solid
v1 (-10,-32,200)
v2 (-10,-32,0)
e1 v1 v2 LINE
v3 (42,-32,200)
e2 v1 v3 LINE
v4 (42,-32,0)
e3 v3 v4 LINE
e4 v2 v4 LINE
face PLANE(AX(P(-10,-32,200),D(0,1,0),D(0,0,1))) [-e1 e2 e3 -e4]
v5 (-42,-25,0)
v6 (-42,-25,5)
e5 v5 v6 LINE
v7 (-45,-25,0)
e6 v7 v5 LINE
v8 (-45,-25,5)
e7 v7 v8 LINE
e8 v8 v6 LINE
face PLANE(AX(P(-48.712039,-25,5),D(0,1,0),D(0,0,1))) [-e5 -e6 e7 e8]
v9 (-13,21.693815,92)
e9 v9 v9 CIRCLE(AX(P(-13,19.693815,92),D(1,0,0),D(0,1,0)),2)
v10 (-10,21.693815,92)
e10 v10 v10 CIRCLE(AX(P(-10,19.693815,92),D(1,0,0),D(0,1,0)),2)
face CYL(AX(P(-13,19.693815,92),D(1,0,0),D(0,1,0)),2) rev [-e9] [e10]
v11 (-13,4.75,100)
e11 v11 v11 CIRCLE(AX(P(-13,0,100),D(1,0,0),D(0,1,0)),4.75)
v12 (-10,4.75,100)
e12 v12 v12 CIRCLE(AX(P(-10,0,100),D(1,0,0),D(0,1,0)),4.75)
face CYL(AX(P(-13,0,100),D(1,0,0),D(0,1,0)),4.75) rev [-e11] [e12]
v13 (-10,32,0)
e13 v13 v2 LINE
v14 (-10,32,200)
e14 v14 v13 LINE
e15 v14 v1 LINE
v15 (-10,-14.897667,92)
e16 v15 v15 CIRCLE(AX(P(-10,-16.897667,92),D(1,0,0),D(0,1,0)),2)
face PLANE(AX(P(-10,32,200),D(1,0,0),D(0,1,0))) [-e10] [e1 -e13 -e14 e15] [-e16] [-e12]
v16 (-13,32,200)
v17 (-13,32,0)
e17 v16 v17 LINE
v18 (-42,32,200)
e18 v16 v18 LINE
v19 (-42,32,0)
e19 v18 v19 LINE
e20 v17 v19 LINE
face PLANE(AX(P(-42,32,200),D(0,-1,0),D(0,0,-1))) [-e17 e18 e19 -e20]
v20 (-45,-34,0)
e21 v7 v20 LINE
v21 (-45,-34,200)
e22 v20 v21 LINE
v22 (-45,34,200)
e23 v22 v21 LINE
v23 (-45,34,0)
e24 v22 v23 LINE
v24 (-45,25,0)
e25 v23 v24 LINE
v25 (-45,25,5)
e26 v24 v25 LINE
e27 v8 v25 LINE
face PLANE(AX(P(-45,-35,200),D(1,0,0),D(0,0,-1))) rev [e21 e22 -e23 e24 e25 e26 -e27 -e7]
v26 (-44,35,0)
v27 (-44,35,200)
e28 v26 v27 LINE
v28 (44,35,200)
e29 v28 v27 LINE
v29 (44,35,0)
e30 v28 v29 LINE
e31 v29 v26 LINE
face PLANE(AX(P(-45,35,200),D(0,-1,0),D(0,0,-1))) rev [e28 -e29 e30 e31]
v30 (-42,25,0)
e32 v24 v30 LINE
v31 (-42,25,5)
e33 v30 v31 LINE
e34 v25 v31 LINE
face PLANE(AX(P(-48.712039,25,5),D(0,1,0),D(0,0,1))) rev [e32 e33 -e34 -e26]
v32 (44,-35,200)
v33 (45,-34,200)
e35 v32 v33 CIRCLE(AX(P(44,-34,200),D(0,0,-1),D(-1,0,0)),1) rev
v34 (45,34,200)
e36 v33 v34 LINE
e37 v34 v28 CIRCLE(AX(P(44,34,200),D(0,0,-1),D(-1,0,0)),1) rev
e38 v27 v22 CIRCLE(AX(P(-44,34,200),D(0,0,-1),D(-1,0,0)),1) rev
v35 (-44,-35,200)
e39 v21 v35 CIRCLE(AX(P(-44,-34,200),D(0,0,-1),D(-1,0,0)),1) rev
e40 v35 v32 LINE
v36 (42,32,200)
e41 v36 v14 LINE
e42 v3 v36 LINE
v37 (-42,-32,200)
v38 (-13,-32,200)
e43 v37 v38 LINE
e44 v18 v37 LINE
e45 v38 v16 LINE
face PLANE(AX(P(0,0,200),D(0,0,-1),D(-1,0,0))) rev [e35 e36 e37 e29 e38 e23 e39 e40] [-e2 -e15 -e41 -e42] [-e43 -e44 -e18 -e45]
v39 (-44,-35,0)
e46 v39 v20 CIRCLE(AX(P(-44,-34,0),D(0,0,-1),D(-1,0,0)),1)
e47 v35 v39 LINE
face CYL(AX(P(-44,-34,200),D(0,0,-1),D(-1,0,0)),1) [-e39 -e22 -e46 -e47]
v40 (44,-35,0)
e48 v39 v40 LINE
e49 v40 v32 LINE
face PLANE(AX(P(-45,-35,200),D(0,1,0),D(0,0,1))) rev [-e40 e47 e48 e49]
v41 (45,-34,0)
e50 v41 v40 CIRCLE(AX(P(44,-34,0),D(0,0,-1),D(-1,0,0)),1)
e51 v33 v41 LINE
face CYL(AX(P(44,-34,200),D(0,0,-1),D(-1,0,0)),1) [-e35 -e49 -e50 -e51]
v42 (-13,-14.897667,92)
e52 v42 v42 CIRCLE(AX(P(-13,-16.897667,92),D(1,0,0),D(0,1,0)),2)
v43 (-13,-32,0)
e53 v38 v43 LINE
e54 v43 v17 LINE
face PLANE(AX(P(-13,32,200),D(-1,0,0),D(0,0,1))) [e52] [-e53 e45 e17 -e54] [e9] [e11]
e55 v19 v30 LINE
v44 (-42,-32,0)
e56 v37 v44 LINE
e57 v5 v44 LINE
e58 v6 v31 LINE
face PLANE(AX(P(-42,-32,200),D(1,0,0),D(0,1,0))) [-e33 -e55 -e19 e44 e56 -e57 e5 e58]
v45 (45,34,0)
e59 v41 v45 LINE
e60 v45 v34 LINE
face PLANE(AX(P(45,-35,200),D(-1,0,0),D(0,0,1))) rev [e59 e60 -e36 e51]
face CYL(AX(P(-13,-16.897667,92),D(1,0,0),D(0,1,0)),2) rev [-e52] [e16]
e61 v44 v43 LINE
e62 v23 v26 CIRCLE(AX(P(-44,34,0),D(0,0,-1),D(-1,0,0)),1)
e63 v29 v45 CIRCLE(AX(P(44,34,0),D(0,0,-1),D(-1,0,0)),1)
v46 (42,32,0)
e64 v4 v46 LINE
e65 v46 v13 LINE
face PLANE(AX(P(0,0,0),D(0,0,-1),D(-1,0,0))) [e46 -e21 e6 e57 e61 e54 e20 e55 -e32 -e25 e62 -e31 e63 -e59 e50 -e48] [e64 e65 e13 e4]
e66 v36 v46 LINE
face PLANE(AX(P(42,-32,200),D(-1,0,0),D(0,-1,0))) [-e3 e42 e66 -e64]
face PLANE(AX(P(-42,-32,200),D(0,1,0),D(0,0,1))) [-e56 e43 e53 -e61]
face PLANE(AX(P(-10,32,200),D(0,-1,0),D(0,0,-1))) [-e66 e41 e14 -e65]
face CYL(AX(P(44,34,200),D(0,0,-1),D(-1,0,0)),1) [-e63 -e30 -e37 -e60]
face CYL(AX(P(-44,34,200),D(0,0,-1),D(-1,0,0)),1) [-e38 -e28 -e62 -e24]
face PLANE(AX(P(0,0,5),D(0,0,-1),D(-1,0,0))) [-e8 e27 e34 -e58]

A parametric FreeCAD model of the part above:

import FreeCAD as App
import Part
import Sketcher


def edges_at(feature, points):
    """Names of the edges that pass closest to the given points."""
    edges = feature.Shape.Edges
    near = lambda p: min(range(len(edges)), key=lambda i: edges[i].distToShape(Part.Vertex(*p))[0])
    return sorted({f"Edge{near(p) + 1}" for p in points})


def add_polygon(sketch, points):
    """Adds a closed chain of lines whose ends are joined by coincident constraints."""
    first, n = sketch.GeometryCount, len(points)
    for a, b in zip(points, points[1:] + points[:1]):
        sketch.addGeometry(Part.LineSegment(App.Vector(*a, 0), App.Vector(*b, 0)), False)
    for i in range(n):
        sketch.addConstraint(Sketcher.Constraint("Coincident", first + i, 2, first + (i + 1) % n, 1))

doc = App.newDocument("Part")
body = doc.addObject("PartDesign::Body", "Body")

# Sketch on XY plane
sketch1 = doc.addObject("Sketcher::SketchObject", "Sketch")
body.addObject(sketch1)
sketch1.AttachmentSupport = (doc.XY_Plane, [""])
sketch1.MapMode = "FlatFace"
add_polygon(sketch1, [(-45, 35), (-45, -35), (45, -35), (45, 35)])  # lines 0-3
add_polygon(sketch1, [(-13, -32), (-42, -32), (-42, 32), (-13, 32)])  # lines 4-7
add_polygon(sketch1, [(42, -32), (-10, -32), (-10, 32), (42, 32)])  # lines 8-11
sketch1.addConstraint(Sketcher.Constraint("Vertical", 0))
sketch1.addConstraint(Sketcher.Constraint("Horizontal", 1))
sketch1.addConstraint(Sketcher.Constraint("Vertical", 2))
sketch1.addConstraint(Sketcher.Constraint("Horizontal", 3))
sketch1.addConstraint(Sketcher.Constraint("Horizontal", 4))
sketch1.addConstraint(Sketcher.Constraint("Vertical", 5))
sketch1.addConstraint(Sketcher.Constraint("Horizontal", 6))
sketch1.addConstraint(Sketcher.Constraint("Vertical", 7))
sketch1.addConstraint(Sketcher.Constraint("Horizontal", 8))
sketch1.addConstraint(Sketcher.Constraint("Vertical", 9))
sketch1.addConstraint(Sketcher.Constraint("Horizontal", 10))
sketch1.addConstraint(Sketcher.Constraint("Vertical", 11))
sketch1.addConstraint(Sketcher.Constraint("Symmetric", 0, 2, 2, 2, -1, 1))
sketch1.addConstraint(Sketcher.Constraint("Symmetric", 4, 2, 10, 2, -1, 1))
sketch1.addConstraint(Sketcher.Constraint("Horizontal", 7, 2, 8, 2))
sketch1.addConstraint(Sketcher.Constraint("Horizontal", 6, 2, 9, 2))
sketch1.addConstraint(Sketcher.Constraint("DistanceX", 1, 1, 1, 2, 90.0))
sketch1.addConstraint(Sketcher.Constraint("DistanceX", 4, 2, 4, 1, 29.0))
sketch1.addConstraint(Sketcher.Constraint("DistanceX", 8, 2, 8, 1, 52.0))
sketch1.addConstraint(Sketcher.Constraint("DistanceY", 0, 2, 0, 1, 70.0))
sketch1.addConstraint(Sketcher.Constraint("DistanceY", 5, 1, 5, 2, 64.0))
sketch1.addConstraint(Sketcher.Constraint("DistanceX", 4, 2, -1, 1, 42.0))
pad1 = doc.addObject("PartDesign::Pad", "Pad")
body.addObject(pad1)
pad1.Profile = sketch1
pad1.Length = 200
doc.recompute()

fillet = doc.addObject("PartDesign::Fillet", "Fillet")
body.addObject(fillet)
fillet.Base = (pad1, edges_at(pad1, [
    (45, -35, 100),
    (-45, -35, 100),
    (-45, 35, 100),
    (45, 35, 100),
]))
fillet.Radius = 1

# Sketch on YZ plane
sketch2 = doc.addObject("Sketcher::SketchObject", "Sketch001")
body.addObject(sketch2)
sketch2.AttachmentSupport = (doc.YZ_Plane, [""])
sketch2.MapMode = "FlatFace"
sketch2.AttachmentOffset = App.Placement(App.Vector(0, 0, -10), App.Rotation())
sketch2.addGeometry(Part.Circle(App.Vector(0, 100, 0), App.Vector(0, 0, 1), 4.75), False)
sketch2.addGeometry(Part.Circle(App.Vector(19.693815, 92, 0), App.Vector(0, 0, 1), 2), False)
sketch2.addGeometry(Part.Circle(App.Vector(-16.897667, 92, 0), App.Vector(0, 0, 1), 2), False)
sketch2.addConstraint(Sketcher.Constraint("Equal", 1, 2))
sketch2.addConstraint(Sketcher.Constraint("PointOnObject", 0, 3, -2))
sketch2.addConstraint(Sketcher.Constraint("Horizontal", 1, 3, 2, 3))
sketch2.addConstraint(Sketcher.Constraint("Diameter", 1, 4.0))
sketch2.addConstraint(Sketcher.Constraint("Diameter", 0, 9.5))
sketch2.addConstraint(Sketcher.Constraint("DistanceY", -1, 1, 0, 3, 100.0))
sketch2.addConstraint(Sketcher.Constraint("DistanceY", -1, 1, 1, 3, 92.0))
sketch2.addConstraint(Sketcher.Constraint("DistanceX", -1, 1, 1, 3, 19.693815))
sketch2.addConstraint(Sketcher.Constraint("DistanceX", 2, 3, -1, 1, 16.897667))
pocket1 = doc.addObject("PartDesign::Pocket", "Pocket")
body.addObject(pocket1)
pocket1.Profile = sketch2
pocket1.Length = 3

# Sketch on XY plane
sketch3 = doc.addObject("Sketcher::SketchObject", "Sketch002")
body.addObject(sketch3)
sketch3.AttachmentSupport = (doc.XY_Plane, [""])
sketch3.MapMode = "FlatFace"
add_polygon(sketch3, [(-38.402362, 25), (-38.402362, -25), (-48.712039, -25), (-48.712039, 25)])  # lines 0-3
sketch3.addConstraint(Sketcher.Constraint("Vertical", 0))
sketch3.addConstraint(Sketcher.Constraint("Horizontal", 1))
sketch3.addConstraint(Sketcher.Constraint("Vertical", 2))
sketch3.addConstraint(Sketcher.Constraint("Horizontal", 3))
sketch3.addConstraint(Sketcher.Constraint("DistanceY", 0, 2, 0, 1, 50.0))
sketch3.addConstraint(Sketcher.Constraint("DistanceY", 0, 2, -1, 1, 25.0))
sketch3.addConstraint(Sketcher.Constraint("DistanceX", 1, 2, 1, 1, 10.309677))
sketch3.addConstraint(Sketcher.Constraint("DistanceX", 0, 2, -1, 1, 38.402362))
pocket2 = doc.addObject("PartDesign::Pocket", "Pocket001")
body.addObject(pocket2)
pocket2.Profile = sketch3
pocket2.Length = 5
pocket2.Reversed = True

doc.recompute()
